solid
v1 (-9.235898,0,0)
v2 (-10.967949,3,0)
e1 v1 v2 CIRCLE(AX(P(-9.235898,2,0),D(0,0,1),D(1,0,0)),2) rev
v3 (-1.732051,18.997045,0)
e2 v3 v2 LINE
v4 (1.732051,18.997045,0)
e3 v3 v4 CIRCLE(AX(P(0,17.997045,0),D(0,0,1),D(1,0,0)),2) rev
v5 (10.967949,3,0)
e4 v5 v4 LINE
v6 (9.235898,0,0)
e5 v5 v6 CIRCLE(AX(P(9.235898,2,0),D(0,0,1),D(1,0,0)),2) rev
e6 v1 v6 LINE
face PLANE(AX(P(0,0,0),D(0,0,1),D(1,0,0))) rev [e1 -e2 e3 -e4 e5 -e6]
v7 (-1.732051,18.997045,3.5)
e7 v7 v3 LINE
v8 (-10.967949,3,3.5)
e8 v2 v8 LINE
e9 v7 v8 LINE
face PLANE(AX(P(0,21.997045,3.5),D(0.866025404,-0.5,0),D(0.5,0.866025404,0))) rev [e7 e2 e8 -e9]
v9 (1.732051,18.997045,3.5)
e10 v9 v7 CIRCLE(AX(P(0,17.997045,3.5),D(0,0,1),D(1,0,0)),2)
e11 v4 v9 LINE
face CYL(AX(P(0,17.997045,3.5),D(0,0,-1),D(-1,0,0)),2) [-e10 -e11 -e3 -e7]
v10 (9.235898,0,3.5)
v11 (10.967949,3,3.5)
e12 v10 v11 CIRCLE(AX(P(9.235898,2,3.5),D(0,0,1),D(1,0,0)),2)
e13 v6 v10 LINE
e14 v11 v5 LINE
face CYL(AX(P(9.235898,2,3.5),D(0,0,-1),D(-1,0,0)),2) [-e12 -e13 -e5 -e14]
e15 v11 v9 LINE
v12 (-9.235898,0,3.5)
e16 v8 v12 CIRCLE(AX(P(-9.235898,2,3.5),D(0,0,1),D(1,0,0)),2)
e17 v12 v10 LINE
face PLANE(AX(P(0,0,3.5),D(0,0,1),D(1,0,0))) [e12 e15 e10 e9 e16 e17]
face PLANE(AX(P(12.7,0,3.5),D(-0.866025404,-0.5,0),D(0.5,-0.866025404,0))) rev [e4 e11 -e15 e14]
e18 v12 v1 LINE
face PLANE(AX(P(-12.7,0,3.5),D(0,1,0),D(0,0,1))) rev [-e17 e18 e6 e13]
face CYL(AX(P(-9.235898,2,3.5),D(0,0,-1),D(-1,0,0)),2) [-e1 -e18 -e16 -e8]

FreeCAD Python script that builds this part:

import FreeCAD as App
import Part
import Sketcher
from FreeCAD import Vector
Q = App.Units.Quantity


def edges_at(feature, points):
    """Names of the edges that pass closest to the given points."""
    edges = feature.Shape.Edges
    near = lambda p: min(range(len(edges)), key=lambda i: edges[i].distToShape(Part.Vertex(*p))[0])
    return sorted({f"Edge{near(p) + 1}" for p in points})

doc = App.newDocument("Part")
body = doc.addObject("PartDesign::Body", "Body")

# Sketch on XY plane
sketch1 = body.newObject("Sketcher::SketchObject", "Sketch")
sketch1.AttachmentSupport = (doc.getObject("XY_Plane"), [""])
sketch1.MapMode = "FlatFace"
sketch1.addGeometry(Part.LineSegment(Vector(-12.7, 0, 0), Vector(12.7, 0, 0)), False)
sketch1.addGeometry(Part.LineSegment(Vector(12.7, 0, 0), Vector(0, 21.997045, 0)), False)
sketch1.addGeometry(Part.LineSegment(Vector(0, 21.997045, 0), Vector(-12.7, 0, 0)), False)
sketch1.addConstraint(Sketcher.Constraint("Coincident", 0, 2, 1, 1))
sketch1.addConstraint(Sketcher.Constraint("Coincident", 1, 2, 2, 1))
sketch1.addConstraint(Sketcher.Constraint("Coincident", 2, 2, 0, 1))
sketch1.addConstraint(Sketcher.Constraint("Horizontal", 0))
sketch1.addConstraint(Sketcher.Constraint("Symmetric", 0, 2, 2, 2, -1, 1))
sketch1.addConstraint(Sketcher.Constraint("PointOnObject", 1, 2, -2))
sketch1.addConstraint(Sketcher.Constraint("Angle", 1, Q("120 deg")))
sketch1.addConstraint(Sketcher.Constraint("DistanceX", 0, 1, 0, 2, 25.4))
pad1 = body.newObject("PartDesign::Pad", "Pad")
pad1.Profile = sketch1
pad1.Length = 3.5
doc.recompute()

fillet = body.newObject("PartDesign::Fillet", "Fillet")
fillet.Base = (pad1, edges_at(pad1, [(0, 21.997, 1.75), (12.7, 0, 1.75), (-12.7, 0, 1.75)]))
fillet.Radius = 2

doc.recompute()
